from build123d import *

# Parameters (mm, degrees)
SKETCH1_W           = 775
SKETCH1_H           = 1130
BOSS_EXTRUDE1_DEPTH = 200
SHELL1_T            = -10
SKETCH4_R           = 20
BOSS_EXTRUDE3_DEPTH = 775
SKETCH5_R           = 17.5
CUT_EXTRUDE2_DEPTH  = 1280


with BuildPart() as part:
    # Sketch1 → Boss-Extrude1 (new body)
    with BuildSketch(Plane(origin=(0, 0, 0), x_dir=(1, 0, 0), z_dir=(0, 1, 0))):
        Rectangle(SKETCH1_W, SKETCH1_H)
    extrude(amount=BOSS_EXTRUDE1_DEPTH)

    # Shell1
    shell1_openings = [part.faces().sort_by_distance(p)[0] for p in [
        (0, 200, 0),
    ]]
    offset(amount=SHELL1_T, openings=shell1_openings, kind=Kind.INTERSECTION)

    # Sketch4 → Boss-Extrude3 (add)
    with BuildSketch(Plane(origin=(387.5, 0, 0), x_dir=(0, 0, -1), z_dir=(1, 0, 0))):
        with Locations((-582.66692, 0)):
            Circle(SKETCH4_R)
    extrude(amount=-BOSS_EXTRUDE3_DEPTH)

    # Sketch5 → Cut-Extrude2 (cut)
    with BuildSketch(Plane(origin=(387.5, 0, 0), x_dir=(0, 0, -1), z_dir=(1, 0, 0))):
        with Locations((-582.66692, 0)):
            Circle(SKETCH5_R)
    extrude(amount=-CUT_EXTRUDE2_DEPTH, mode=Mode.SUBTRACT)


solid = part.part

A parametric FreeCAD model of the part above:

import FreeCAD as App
import Part
import Sketcher
from FreeCAD import Vector
Q = App.Units.Quantity


def faces_at(feature, points):
    """Names of the faces that lie closest to the given points."""
    faces = feature.Shape.Faces
    near = lambda p: min(range(len(faces)), key=lambda i: faces[i].distToShape(Part.Vertex(*p))[0])
    return sorted({f"Face{near(p) + 1}" for p in points})

doc = App.newDocument("Part")
body = doc.addObject("PartDesign::Body", "Body")

# Sketch on XZ plane
sketch1 = body.newObject("Sketcher::SketchObject", "Sketch")
sketch1.AttachmentSupport = (doc.getObject("XZ_Plane"), [""])
sketch1.MapMode = "FlatFace"
sketch1.addGeometry([
    Part.LineSegment(Vector(-387.5, -565, 0), Vector(-387.5, 565, 0)),
    Part.LineSegment(Vector(-387.5, 565, 0), Vector(387.5, 565, 0)),
    Part.LineSegment(Vector(387.5, 565, 0), Vector(387.5, -565, 0)),
    Part.LineSegment(Vector(387.5, -565, 0), Vector(-387.5, -565, 0)),
], False)
sketch1.addConstraint([
    Sketcher.Constraint("Coincident", 0, 2, 1, 1),
    Sketcher.Constraint("Coincident", 1, 2, 2, 1),
    Sketcher.Constraint("Coincident", 2, 2, 3, 1),
    Sketcher.Constraint("Coincident", 3, 2, 0, 1),
    Sketcher.Constraint("Vertical", 0),
    Sketcher.Constraint("Horizontal", 1),
    Sketcher.Constraint("Vertical", 2),
    Sketcher.Constraint("Horizontal", 3),
    Sketcher.Constraint("Symmetric", 0, 2, 2, 2, -1, 1),
    Sketcher.Constraint("DistanceX", 1, 1, 1, 2, Q("775 mm")),
    Sketcher.Constraint("DistanceY", 0, 1, 0, 2, Q("1130 mm")),
])
pad1 = body.newObject("PartDesign::Pad", "Pad")
pad1.Profile = sketch1
pad1.Length = 200
pad1.Reversed = True
doc.recompute()

thickness = body.newObject("PartDesign::Thickness", "Thickness")
thickness.Base = (pad1, faces_at(pad1, [(0, 200, 0)]))
thickness.Value = 10
thickness.Reversed = True
thickness.Join = "Intersection"

# Sketch on YZ plane
sketch2 = body.newObject("Sketcher::SketchObject", "Sketch001")
sketch2.AttachmentSupport = (doc.getObject("YZ_Plane"), [""])
sketch2.MapMode = "FlatFace"
sketch2.AttachmentOffset = App.Placement(Vector(0, 0, 387.5), App.Rotation())
sketch2.addGeometry(Part.Circle(Vector(0, 582.66692, 0), Vector(0, 0, 1), 20), False)
sketch2.addConstraint([
    Sketcher.Constraint("PointOnObject", 0, 3, -2),
    Sketcher.Constraint("Diameter", 0, Q("40 mm")),
    Sketcher.Constraint("DistanceY", -1, 1, 0, 3, Q("582.66692 mm")),
])
pad2 = body.newObject("PartDesign::Pad", "Pad001")
pad2.Profile = sketch2
pad2.Length = 775
pad2.Reversed = True

# Sketch on YZ plane
sketch3 = body.newObject("Sketcher::SketchObject", "Sketch002")
sketch3.AttachmentSupport = (doc.getObject("YZ_Plane"), [""])
sketch3.MapMode = "FlatFace"
sketch3.AttachmentOffset = App.Placement(Vector(0, 0, 387.5), App.Rotation())
sketch3.addGeometry(Part.Circle(Vector(0, 582.66692, 0), Vector(0, 0, 1), 17.5), False)
sketch3.addConstraint([
    Sketcher.Constraint("PointOnObject", 0, 3, -2),
    Sketcher.Constraint("Diameter", 0, Q("35 mm")),
    Sketcher.Constraint("DistanceY", -1, 1, 0, 3, Q("582.66692 mm")),
])
pocket1 = body.newObject("PartDesign::Pocket", "Pocket")
pocket1.Profile = sketch3
pocket1.Length = 1280

doc.recompute()
